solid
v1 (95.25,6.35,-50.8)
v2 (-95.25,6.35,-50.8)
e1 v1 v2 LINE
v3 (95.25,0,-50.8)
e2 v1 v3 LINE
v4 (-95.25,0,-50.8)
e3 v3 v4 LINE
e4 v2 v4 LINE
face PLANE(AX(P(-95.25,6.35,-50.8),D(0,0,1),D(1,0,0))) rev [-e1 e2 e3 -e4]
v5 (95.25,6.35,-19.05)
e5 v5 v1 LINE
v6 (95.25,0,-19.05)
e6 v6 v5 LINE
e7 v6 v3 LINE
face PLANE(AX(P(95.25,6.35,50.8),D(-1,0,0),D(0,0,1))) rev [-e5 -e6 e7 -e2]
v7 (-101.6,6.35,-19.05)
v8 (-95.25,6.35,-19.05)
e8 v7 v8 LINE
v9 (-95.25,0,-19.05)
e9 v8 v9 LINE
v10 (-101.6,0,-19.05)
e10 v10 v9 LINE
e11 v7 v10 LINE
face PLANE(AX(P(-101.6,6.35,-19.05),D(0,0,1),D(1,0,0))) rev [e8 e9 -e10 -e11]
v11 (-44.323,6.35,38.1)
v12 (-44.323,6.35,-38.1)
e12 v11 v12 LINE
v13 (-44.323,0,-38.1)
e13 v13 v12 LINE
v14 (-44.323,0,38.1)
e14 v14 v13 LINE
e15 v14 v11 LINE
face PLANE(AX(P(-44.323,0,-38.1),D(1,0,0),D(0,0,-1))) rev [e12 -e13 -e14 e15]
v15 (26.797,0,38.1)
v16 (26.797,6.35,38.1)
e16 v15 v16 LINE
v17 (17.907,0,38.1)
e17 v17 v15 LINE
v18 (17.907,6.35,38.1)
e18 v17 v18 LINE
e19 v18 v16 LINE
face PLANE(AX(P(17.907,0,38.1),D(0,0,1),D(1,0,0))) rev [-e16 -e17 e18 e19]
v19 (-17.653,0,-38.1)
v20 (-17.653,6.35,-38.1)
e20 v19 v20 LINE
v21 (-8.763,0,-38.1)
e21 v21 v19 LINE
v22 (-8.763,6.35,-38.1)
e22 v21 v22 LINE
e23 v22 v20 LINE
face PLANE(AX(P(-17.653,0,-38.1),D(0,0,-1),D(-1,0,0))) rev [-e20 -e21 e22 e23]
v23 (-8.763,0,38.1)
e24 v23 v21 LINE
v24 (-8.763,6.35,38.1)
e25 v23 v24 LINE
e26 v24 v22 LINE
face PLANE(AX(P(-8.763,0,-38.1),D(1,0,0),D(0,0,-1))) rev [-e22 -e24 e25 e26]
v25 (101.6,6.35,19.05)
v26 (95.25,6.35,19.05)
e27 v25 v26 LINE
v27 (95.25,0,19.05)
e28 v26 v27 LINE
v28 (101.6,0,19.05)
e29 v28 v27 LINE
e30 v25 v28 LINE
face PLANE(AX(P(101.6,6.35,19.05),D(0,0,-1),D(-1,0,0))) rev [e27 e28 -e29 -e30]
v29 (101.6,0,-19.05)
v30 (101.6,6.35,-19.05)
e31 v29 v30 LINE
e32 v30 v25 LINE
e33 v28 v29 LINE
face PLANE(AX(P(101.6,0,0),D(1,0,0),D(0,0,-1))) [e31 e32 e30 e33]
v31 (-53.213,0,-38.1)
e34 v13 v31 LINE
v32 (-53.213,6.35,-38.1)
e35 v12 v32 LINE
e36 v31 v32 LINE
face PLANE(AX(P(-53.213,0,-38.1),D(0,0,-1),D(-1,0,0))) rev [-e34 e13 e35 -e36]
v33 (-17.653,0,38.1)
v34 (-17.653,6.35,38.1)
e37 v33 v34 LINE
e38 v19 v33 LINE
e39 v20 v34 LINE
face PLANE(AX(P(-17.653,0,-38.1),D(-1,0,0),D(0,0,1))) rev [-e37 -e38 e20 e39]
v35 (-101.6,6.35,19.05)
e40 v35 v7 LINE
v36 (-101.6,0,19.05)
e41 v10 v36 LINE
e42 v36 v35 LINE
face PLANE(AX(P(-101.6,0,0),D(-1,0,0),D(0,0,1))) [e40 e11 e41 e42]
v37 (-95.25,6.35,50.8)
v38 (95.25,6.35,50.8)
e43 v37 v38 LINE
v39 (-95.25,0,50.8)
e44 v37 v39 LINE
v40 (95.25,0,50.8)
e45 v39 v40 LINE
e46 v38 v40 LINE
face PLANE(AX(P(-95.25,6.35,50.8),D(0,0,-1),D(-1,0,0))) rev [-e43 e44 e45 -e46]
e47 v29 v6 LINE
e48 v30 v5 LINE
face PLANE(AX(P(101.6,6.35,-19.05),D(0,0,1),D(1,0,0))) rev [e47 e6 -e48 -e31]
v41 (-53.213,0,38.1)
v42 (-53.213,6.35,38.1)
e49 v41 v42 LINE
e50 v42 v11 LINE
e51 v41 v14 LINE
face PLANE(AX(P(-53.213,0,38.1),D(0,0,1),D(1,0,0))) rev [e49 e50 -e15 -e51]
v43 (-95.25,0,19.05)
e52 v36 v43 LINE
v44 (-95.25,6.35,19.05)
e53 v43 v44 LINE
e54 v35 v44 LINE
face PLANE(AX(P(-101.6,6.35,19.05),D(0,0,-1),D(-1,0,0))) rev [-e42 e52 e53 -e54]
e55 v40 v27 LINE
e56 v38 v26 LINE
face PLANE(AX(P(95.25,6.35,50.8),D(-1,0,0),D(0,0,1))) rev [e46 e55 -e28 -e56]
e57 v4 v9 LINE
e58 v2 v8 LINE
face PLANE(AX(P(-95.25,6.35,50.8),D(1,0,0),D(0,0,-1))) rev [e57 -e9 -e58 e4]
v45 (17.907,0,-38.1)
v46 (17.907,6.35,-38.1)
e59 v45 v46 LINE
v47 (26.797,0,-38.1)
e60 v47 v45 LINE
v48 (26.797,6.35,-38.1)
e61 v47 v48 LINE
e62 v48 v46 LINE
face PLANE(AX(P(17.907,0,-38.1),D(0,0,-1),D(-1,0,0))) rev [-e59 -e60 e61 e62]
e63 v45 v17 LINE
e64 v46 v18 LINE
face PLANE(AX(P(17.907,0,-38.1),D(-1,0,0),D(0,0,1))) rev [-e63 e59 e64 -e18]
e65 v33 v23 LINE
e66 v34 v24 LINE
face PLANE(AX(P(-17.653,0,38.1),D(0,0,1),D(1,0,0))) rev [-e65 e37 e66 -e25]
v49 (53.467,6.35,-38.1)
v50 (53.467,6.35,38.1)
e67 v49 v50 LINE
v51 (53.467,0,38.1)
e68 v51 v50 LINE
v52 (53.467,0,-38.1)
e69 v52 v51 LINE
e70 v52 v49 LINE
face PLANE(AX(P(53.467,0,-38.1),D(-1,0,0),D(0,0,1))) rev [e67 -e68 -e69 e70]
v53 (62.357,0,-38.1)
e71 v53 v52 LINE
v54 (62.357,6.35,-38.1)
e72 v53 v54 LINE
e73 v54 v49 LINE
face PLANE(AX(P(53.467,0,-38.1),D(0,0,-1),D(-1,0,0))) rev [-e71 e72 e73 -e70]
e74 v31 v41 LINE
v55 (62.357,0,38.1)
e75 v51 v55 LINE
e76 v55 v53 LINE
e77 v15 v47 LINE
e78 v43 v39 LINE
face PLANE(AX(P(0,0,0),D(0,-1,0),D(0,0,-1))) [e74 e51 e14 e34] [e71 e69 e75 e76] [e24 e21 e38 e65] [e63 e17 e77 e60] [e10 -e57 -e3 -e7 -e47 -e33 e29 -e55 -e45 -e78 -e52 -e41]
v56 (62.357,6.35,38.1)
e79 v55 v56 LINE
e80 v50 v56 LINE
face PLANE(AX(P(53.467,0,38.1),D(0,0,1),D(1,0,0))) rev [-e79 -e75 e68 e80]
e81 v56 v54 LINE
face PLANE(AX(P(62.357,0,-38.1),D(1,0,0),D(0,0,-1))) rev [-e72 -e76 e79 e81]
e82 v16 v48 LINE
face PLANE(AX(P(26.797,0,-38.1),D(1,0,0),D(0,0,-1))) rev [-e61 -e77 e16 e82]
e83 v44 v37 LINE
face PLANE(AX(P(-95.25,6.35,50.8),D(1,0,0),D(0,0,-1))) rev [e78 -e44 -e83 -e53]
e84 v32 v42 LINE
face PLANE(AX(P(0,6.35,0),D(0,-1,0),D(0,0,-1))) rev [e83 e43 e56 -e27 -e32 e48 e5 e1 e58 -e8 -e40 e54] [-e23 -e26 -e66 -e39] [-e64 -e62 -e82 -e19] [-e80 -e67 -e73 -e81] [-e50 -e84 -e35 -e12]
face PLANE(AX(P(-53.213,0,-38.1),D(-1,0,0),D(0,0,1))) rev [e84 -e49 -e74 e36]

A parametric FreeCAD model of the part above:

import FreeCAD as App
import Part
import Sketcher

V = App.Vector
Q = App.Units.Quantity


def add_polygon(sketch, points):
    """Adds a closed chain of lines whose ends are joined by coincident constraints."""
    first, n = sketch.GeometryCount, len(points)
    for a, b in zip(points, points[1:] + points[:1]):
        sketch.addGeometry(Part.LineSegment(App.Vector(*a, 0), App.Vector(*b, 0)), False)
    for i in range(n):
        sketch.addConstraint(Sketcher.Constraint("Coincident", first + i, 2, first + (i + 1) % n, 1))

doc = App.newDocument("Part")
body = doc.addObject("PartDesign::Body", "Body")

# Sketch on XZ plane
sketch1 = body.newObject("Sketcher::SketchObject", "Sketch")
sketch1.AttachmentSupport = (doc.getObject("XZ_Plane"), [""])
sketch1.MapMode = "FlatFace"
add_polygon(sketch1, [(-95, -51), (-95, 51), (95, 51), (95, -51)])  # lines 0-3
sketch1.addConstraint([
    Sketcher.Constraint("Vertical", 0),
    Sketcher.Constraint("Horizontal", 1),
    Sketcher.Constraint("Vertical", 2),
    Sketcher.Constraint("Horizontal", 3),
    Sketcher.Constraint("Symmetric", 0, 2, 2, 2, -1, 1),
    Sketcher.Constraint("DistanceY", 0, 1, 0, 2, Q("4 in")),
    Sketcher.Constraint("DistanceX", 1, 1, 1, 2, Q("7.5 in")),
])
pad1 = body.newObject("PartDesign::Pad", "Pad")
pad1.Profile = sketch1
pad1.Length = Q("0.25 in")
pad1.Reversed = True

# Sketch on XZ plane
sketch2 = body.newObject("Sketcher::SketchObject", "Sketch001")
sketch2.AttachmentSupport = (doc.getObject("XZ_Plane"), [""])
sketch2.MapMode = "FlatFace"
sketch2.AttachmentOffset = App.Placement(V(0, 0, -0.25 * 25.4), App.Rotation())
add_polygon(sketch2, [(-53, -38), (-53, 38), (-44, 38), (-44, -38)])  # lines 0-3
add_polygon(sketch2, [(-18, -38), (-18, 38), (-9, 38), (-9, -38)])  # lines 4-7
add_polygon(sketch2, [(18, -38), (18, 38), (27, 38), (27, -38)])  # lines 8-11
add_polygon(sketch2, [(53, -38), (53, 38), (62, 38), (62, -38)])  # lines 12-15
sketch2.addConstraint([
    Sketcher.Constraint("Vertical", 0),
    Sketcher.Constraint("Horizontal", 1),
    Sketcher.Constraint("Vertical", 2),
    Sketcher.Constraint("Horizontal", 3),
    Sketcher.Constraint("Vertical", 4),
    Sketcher.Constraint("Horizontal", 5),
    Sketcher.Constraint("Vertical", 6),
    Sketcher.Constraint("Horizontal", 7),
    Sketcher.Constraint("Vertical", 8),
    Sketcher.Constraint("Horizontal", 9),
    Sketcher.Constraint("Vertical", 10),
    Sketcher.Constraint("Horizontal", 11),
    Sketcher.Constraint("Vertical", 12),
    Sketcher.Constraint("Horizontal", 13),
    Sketcher.Constraint("Vertical", 14),
    Sketcher.Constraint("Horizontal", 15),
    Sketcher.Constraint("Horizontal", 1, 2, 4, 2),
    Sketcher.Constraint("Horizontal", 3, 2, 6, 2),
    Sketcher.Constraint("Horizontal", 5, 2, 8, 2),
    Sketcher.Constraint("Horizontal", 7, 2, 10, 2),
    Sketcher.Constraint("Horizontal", 9, 2, 12, 2),
    Sketcher.Constraint("Horizontal", 11, 2, 14, 2),
    Sketcher.Constraint("Equal", 3, 5),
    Sketcher.Constraint("Equal", 7, 9),
    Sketcher.Constraint("Equal", 11, 13),
    Sketcher.Constraint("DistanceY", 0, 1, 0, 2, Q("3 in")),
    Sketcher.Constraint("DistanceX", 1, 1, 1, 2, Q("0.35 in")),
    Sketcher.Constraint("DistanceY", -1, 1, 0, 2, Q("1.5 in")),
    Sketcher.Constraint("DistanceX", 0, 2, 4, 2, Q("1.4 in")),
    Sketcher.Constraint("DistanceX", 4, 2, 8, 2, Q("1.4 in")),
    Sketcher.Constraint("DistanceX", 8, 2, 12, 2, Q("1.4 in")),
    Sketcher.Constraint("DistanceX", 0, 2, -1, 1, Q("2.095 in")),
])
pocket1 = body.newObject("PartDesign::Pocket", "Pocket")
pocket1.Profile = sketch2
pocket1.Length = Q("0.25 in")
pocket1.Reversed = True

# Sketch on YZ plane
sketch3 = body.newObject("Sketcher::SketchObject", "Sketch002")
sketch3.AttachmentSupport = (doc.getObject("YZ_Plane"), [""])
sketch3.MapMode = "FlatFace"
sketch3.AttachmentOffset = App.Placement(V(0, 0, -3.75 * 25.4), App.Rotation())
add_polygon(sketch3, [(6, -19), (0, -19), (0, 19), (6, 19)])  # lines 0-3
sketch3.addConstraint([
    Sketcher.Constraint("Horizontal", 0),
    Sketcher.Constraint("Vertical", 1),
    Sketcher.Constraint("Horizontal", 2),
    Sketcher.Constraint("Vertical", 3),
    Sketcher.Constraint("Symmetric", 0, 2, 1, 2, -1, 1),
    Sketcher.Constraint("DistanceY", 1, 1, 1, 2, Q("1.5 in")),
    Sketcher.Constraint("DistanceX", 0, 2, 0, 1, Q("0.25 in")),
])
pad2 = body.newObject("PartDesign::Pad", "Pad001")
pad2.Profile = sketch3
pad2.Length = Q("0.25 in")
pad2.Reversed = True

# Sketch on YZ plane
sketch4 = body.newObject("Sketcher::SketchObject", "Sketch003")
sketch4.AttachmentSupport = (doc.getObject("YZ_Plane"), [""])
sketch4.MapMode = "FlatFace"
sketch4.AttachmentOffset = App.Placement(V(0, 0, 3.75 * 25.4), App.Rotation())
add_polygon(sketch4, [(6, 19), (0, 19), (0, -19), (6, -19)])  # lines 0-3
sketch4.addConstraint([
    Sketcher.Constraint("Horizontal", 0),
    Sketcher.Constraint("Vertical", 1),
    Sketcher.Constraint("Horizontal", 2),
    Sketcher.Constraint("Vertical", 3),
    Sketcher.Constraint("Symmetric", 0, 2, 1, 2, -1, 1),
    Sketcher.Constraint("DistanceY", 1, 2, 1, 1, Q("1.5 in")),
    Sketcher.Constraint("DistanceX", 0, 2, 0, 1, Q("0.25 in")),
])
pad3 = body.newObject("PartDesign::Pad", "Pad002")
pad3.Profile = sketch4
pad3.Length = Q("0.25 in")

doc.recompute()
